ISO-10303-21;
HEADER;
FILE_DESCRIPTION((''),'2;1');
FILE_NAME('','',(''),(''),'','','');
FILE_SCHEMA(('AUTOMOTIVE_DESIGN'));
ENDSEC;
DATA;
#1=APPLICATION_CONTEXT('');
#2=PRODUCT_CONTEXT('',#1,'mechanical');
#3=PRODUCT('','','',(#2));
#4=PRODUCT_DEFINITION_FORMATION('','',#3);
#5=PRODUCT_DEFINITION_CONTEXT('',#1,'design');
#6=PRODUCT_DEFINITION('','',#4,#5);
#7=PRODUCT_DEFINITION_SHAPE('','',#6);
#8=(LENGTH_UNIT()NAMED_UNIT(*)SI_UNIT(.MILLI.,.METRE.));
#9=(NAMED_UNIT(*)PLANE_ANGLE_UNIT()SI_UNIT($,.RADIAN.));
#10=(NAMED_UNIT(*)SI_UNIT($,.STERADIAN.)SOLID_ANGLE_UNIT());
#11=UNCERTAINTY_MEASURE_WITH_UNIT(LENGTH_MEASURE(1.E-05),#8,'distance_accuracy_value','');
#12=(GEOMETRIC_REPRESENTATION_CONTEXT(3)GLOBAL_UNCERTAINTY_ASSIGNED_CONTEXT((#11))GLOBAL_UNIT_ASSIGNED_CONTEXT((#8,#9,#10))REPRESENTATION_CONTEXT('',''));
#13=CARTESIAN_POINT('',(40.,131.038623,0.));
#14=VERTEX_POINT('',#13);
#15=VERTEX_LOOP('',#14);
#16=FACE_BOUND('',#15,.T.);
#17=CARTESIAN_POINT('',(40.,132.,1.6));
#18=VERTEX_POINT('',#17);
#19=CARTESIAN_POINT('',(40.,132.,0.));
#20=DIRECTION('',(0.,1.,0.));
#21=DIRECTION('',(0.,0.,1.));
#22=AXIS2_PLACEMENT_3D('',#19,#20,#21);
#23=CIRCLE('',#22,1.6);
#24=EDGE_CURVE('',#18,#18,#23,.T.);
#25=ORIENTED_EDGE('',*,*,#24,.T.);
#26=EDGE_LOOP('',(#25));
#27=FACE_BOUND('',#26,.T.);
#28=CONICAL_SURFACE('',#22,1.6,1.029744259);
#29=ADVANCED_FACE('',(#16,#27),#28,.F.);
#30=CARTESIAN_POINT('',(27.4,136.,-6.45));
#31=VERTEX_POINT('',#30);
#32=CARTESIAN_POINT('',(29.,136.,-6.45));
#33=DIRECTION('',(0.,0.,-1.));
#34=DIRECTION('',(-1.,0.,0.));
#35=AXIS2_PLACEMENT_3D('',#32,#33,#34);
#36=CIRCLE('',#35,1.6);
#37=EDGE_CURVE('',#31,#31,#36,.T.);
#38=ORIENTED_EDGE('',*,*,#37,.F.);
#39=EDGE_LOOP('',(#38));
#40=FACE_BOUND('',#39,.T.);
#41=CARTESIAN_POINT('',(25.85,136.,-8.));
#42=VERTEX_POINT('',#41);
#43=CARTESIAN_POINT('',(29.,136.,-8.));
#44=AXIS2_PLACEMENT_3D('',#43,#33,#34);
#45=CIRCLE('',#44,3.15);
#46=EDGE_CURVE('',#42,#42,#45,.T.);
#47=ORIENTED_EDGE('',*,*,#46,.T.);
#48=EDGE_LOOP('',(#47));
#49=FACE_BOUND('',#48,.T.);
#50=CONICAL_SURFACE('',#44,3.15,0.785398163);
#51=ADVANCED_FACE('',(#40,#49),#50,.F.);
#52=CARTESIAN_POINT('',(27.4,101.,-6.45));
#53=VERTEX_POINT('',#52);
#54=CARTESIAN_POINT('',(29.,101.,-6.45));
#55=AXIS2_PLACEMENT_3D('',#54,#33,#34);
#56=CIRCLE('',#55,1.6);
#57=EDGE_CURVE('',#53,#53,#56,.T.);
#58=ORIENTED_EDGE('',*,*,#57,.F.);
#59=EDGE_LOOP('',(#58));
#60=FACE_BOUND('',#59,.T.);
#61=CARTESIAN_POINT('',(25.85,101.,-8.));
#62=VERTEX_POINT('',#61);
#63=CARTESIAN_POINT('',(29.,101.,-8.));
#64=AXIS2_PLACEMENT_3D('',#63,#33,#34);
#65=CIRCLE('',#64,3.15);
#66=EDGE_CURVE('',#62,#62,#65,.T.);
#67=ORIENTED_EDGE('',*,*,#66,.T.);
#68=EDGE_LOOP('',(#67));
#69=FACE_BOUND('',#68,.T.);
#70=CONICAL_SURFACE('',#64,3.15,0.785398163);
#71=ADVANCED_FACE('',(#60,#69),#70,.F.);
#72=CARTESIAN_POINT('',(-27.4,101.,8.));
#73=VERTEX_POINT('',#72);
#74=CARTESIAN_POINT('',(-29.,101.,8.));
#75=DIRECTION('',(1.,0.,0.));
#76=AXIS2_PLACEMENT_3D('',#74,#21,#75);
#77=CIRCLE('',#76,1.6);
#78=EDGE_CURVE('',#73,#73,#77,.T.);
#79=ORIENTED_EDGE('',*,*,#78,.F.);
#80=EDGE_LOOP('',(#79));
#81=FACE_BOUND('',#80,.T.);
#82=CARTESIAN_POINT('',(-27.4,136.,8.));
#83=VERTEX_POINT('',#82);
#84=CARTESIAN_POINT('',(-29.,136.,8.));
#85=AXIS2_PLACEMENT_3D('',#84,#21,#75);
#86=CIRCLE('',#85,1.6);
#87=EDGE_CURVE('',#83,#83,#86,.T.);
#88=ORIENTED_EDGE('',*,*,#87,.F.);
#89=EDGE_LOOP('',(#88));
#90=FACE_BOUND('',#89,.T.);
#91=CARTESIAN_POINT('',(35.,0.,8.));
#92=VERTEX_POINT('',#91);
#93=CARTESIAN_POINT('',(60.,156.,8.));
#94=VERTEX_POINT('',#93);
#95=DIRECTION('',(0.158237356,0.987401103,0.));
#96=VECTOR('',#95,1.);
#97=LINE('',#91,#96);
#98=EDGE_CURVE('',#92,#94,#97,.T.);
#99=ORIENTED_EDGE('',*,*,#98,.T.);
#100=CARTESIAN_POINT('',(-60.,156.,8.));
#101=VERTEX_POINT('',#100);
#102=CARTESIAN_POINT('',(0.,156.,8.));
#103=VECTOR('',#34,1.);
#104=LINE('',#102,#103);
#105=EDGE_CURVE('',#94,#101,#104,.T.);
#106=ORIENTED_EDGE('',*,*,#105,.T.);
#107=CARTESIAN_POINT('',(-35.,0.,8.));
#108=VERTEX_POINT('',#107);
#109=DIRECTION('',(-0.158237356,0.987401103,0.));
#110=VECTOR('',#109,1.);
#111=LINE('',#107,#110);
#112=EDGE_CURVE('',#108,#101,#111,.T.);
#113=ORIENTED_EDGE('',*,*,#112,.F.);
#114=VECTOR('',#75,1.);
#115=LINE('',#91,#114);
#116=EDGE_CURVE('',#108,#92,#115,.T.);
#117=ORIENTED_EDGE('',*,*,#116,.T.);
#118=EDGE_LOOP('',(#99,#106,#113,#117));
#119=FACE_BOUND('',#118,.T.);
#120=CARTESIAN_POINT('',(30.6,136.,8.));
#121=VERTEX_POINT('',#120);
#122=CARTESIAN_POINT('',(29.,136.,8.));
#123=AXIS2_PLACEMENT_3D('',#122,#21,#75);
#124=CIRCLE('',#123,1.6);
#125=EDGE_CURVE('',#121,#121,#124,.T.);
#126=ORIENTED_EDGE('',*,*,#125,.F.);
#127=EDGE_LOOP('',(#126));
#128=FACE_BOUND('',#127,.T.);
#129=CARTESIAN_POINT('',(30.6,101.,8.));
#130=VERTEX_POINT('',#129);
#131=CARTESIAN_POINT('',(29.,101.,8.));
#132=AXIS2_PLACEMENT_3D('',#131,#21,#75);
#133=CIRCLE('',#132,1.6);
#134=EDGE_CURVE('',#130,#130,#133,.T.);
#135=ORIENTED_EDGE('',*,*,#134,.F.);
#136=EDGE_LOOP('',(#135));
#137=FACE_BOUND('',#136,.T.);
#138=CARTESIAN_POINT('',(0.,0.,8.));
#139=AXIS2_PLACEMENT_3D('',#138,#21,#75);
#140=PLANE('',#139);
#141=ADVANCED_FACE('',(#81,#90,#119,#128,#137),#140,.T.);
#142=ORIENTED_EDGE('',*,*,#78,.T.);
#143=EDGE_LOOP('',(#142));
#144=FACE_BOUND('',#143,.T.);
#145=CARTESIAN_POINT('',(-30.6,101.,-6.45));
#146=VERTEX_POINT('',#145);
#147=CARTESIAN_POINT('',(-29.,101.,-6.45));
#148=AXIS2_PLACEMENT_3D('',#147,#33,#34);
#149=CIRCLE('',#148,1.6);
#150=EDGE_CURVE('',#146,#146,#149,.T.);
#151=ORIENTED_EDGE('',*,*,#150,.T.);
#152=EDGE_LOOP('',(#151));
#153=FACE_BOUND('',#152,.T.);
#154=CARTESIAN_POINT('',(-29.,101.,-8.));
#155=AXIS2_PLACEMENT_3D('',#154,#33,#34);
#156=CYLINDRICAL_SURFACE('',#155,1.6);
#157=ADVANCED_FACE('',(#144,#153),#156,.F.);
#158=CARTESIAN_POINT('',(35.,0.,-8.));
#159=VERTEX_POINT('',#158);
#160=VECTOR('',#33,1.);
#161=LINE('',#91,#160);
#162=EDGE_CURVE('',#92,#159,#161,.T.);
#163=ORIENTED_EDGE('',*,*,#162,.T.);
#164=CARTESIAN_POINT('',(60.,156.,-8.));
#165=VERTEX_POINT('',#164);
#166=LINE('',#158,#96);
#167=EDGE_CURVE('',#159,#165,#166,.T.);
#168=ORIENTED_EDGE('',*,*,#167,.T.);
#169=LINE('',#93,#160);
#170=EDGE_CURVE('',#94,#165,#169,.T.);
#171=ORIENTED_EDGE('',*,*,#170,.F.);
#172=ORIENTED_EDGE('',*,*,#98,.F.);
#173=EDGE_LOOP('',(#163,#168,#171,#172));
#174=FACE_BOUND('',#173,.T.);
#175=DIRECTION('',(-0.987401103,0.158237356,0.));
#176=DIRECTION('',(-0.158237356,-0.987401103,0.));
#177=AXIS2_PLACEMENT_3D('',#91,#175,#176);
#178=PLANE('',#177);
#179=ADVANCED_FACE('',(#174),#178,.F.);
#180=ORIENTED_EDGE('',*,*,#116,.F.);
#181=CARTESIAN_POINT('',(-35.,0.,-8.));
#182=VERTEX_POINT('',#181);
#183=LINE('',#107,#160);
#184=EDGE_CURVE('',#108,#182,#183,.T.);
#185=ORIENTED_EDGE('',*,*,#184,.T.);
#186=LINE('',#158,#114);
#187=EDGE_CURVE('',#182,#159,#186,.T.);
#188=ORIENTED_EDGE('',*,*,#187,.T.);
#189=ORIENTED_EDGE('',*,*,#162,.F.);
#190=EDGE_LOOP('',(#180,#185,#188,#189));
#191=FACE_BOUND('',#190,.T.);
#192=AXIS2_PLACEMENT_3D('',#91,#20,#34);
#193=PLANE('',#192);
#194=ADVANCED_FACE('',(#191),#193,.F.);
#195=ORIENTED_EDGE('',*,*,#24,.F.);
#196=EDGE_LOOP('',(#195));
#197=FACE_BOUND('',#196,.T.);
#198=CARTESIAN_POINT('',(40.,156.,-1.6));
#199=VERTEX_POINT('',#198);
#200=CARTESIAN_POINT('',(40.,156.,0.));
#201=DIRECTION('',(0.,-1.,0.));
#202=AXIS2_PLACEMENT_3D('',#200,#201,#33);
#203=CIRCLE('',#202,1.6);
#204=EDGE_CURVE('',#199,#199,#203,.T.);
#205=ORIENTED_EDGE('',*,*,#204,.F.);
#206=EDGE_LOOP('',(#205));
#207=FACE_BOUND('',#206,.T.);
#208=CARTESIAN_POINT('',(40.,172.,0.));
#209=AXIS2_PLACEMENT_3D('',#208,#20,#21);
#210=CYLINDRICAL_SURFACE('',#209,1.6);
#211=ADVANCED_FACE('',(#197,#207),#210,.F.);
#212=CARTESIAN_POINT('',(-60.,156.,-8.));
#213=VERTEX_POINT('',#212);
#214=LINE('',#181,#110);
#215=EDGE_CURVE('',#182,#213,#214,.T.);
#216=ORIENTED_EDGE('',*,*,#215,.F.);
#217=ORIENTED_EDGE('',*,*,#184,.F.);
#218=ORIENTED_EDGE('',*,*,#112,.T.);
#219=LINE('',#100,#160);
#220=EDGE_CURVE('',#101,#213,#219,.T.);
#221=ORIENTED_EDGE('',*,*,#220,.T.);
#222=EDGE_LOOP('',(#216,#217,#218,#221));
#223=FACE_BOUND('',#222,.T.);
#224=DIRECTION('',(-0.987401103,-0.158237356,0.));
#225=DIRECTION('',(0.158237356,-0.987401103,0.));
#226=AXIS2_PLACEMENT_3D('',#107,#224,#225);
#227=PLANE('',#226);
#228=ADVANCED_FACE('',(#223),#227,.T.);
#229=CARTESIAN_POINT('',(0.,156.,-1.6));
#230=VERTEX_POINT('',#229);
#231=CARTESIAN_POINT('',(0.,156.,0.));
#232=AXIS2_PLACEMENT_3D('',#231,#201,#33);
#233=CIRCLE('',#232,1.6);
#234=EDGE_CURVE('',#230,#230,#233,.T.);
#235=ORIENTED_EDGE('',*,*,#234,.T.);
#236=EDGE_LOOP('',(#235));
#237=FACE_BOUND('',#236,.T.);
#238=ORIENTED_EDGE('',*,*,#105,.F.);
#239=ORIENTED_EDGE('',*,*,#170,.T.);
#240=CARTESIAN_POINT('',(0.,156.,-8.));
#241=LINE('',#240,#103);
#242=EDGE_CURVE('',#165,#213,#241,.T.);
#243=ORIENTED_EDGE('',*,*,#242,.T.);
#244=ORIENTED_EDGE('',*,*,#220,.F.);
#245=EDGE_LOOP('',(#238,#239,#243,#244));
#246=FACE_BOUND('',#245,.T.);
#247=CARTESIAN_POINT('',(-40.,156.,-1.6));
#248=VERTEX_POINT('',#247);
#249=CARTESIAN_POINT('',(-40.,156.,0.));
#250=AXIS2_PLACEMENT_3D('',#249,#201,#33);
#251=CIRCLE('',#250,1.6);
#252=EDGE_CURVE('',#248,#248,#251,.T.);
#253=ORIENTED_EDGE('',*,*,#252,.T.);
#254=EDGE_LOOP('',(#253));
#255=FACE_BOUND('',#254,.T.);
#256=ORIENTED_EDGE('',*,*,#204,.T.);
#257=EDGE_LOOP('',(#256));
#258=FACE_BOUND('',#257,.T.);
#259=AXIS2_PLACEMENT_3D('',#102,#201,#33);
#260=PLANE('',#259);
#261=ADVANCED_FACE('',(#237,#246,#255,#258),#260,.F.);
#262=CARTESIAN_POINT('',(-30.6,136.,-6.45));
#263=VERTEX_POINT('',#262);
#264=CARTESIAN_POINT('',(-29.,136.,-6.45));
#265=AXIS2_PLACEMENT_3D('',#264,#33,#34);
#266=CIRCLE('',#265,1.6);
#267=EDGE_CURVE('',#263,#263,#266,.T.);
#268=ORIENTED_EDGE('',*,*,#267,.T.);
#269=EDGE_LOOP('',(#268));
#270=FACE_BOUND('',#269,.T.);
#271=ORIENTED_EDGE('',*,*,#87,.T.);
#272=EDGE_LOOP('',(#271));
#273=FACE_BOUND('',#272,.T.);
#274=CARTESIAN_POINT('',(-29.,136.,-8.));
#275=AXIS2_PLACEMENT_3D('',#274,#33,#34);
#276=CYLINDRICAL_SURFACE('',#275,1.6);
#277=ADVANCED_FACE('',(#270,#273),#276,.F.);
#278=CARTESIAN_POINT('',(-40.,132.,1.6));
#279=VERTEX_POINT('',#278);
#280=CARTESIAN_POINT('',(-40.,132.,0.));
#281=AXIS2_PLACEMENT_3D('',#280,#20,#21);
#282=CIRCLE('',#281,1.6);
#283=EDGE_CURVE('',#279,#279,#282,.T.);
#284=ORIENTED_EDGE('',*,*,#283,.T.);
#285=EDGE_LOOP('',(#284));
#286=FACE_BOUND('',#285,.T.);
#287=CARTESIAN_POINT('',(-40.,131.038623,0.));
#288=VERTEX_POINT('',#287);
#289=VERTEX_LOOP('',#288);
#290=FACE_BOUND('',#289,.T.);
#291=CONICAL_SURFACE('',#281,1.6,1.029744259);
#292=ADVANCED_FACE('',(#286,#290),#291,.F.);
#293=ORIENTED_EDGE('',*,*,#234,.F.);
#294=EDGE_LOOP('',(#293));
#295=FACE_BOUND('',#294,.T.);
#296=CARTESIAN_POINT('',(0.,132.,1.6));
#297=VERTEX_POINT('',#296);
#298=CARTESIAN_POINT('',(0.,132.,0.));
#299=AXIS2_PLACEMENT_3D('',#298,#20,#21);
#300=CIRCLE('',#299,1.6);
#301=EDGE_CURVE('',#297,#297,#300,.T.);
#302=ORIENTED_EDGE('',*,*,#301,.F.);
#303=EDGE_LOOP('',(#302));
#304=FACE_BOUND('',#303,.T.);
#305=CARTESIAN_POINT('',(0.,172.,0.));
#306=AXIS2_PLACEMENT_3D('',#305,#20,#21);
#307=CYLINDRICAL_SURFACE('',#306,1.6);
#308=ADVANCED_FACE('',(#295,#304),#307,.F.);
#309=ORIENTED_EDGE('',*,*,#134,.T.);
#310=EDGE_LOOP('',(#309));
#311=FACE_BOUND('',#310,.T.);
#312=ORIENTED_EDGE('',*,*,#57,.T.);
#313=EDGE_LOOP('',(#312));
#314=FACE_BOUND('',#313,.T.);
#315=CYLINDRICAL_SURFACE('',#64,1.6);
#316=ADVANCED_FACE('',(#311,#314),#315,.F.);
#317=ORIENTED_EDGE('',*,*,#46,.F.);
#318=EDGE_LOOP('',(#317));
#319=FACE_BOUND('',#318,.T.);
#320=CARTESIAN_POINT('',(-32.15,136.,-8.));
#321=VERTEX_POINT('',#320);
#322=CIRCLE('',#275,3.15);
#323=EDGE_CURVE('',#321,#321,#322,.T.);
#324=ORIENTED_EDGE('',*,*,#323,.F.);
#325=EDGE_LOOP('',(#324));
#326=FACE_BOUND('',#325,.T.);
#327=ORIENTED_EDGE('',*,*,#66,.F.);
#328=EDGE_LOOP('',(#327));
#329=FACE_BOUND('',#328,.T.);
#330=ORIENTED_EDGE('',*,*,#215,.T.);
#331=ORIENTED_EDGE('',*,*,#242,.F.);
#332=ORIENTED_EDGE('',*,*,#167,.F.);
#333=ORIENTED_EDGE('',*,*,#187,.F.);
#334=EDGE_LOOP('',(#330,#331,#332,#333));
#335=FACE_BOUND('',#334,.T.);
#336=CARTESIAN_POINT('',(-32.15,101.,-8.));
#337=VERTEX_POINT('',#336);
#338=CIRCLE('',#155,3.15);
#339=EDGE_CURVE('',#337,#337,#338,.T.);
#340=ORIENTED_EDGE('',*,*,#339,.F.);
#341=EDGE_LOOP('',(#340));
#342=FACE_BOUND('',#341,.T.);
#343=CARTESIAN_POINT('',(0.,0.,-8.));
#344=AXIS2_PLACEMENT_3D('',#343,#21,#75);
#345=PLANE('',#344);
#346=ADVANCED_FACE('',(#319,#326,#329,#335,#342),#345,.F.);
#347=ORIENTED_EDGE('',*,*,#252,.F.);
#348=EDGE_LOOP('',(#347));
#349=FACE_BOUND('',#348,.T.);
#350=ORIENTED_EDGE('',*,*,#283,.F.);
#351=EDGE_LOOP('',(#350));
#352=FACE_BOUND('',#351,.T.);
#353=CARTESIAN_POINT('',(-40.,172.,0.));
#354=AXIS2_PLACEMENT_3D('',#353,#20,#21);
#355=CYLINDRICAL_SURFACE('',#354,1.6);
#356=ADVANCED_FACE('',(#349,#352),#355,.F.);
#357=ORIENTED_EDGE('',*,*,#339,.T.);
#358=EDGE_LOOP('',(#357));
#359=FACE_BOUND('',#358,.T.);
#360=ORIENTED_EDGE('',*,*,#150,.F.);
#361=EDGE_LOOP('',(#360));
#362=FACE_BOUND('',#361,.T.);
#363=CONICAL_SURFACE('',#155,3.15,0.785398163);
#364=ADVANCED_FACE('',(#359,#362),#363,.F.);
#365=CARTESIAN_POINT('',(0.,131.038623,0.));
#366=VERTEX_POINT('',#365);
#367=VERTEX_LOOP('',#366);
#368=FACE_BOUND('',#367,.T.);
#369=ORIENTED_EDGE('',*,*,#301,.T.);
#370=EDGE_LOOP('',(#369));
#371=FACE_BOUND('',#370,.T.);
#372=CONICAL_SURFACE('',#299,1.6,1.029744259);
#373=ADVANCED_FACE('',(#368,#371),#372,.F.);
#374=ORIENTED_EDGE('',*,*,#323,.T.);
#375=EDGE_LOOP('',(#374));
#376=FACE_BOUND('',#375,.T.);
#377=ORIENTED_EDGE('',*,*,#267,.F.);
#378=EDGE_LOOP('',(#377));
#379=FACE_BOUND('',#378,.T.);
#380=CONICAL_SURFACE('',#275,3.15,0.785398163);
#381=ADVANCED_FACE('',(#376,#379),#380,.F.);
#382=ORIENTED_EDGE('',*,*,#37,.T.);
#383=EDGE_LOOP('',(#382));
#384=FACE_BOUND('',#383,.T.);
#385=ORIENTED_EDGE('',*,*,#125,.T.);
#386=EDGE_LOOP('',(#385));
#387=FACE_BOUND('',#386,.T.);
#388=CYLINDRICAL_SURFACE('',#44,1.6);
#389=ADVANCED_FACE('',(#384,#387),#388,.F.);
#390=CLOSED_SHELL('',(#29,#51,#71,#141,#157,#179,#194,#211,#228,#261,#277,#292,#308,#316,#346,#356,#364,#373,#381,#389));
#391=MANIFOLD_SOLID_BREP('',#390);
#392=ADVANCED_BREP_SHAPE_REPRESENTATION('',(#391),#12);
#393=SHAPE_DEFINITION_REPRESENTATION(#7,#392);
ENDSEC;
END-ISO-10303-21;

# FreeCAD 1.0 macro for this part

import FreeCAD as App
import Part
import Sketcher

V = App.Vector
Q = App.Units.Quantity


def add_polygon(sketch, points):
    """Adds a closed chain of lines whose ends are joined by coincident constraints."""
    first, n = sketch.GeometryCount, len(points)
    for a, b in zip(points, points[1:] + points[:1]):
        sketch.addGeometry(Part.LineSegment(App.Vector(*a, 0), App.Vector(*b, 0)), False)
    for i in range(n):
        sketch.addConstraint(Sketcher.Constraint("Coincident", first + i, 2, first + (i + 1) % n, 1))

doc = App.newDocument("Part")
body = doc.addObject("PartDesign::Body", "Body")

# Sketch on XY plane
sketch1 = body.newObject("Sketcher::SketchObject", "Sketch")
sketch1.AttachmentSupport = (doc.getObject("XY_Plane"), [""])
sketch1.MapMode = "FlatFace"
add_polygon(sketch1, [(0, 0), (35, 0), (60, 156), (0, 156)])  # lines 0-3
sketch1.addConstraint([
    Sketcher.Constraint("Horizontal", 0),
    Sketcher.Constraint("Horizontal", 2),
    Sketcher.Constraint("Vertical", 3),
    Sketcher.Constraint("Coincident", 3, 2, -1, 1),
    Sketcher.Constraint("DistanceX", 0, 1, 0, 2, 35.0),
    Sketcher.Constraint("DistanceX", 2, 2, 2, 1, 60.0),
    Sketcher.Constraint("DistanceY", 3, 2, 3, 1, 156.0),
])
pad1 = body.newObject("PartDesign::Pad", "Pad")
pad1.Profile = sketch1
pad1.Length = 16
pad1.Midplane = True
doc.recompute()

mirrored = body.newObject("PartDesign::Mirrored", "Mirrored")
mirrored.Originals = [pad1]
mirrored.MirrorPlane = (doc.getObject("YZ_Plane"), [""])
body.Tip = mirrored

# Sketch on YZ plane
sketch2 = body.newObject("Sketcher::SketchObject", "Sketch001")
sketch2.AttachmentSupport = (doc.getObject("YZ_Plane"), [""])
sketch2.MapMode = "FlatFace"
sketch2.AttachmentOffset = App.Placement(V(0, 0, 29), App.Rotation())
add_polygon(sketch2, [(101, 32.961377), (101, -8), (104.15, -8), (102.6, -6.45), (102.6, 32)])  # lines 0-4
sketch2.addGeometry(Part.LineSegment(V(101, -8, 0), V(101, 32.961377, 0)), True)  # axis
sketch2.addConstraint([
    Sketcher.Constraint("Vertical", 0),
    Sketcher.Constraint("Horizontal", 1),
    Sketcher.Constraint("Vertical", 3),
    Sketcher.Constraint("Vertical", 5),
    Sketcher.Constraint("Coincident", 5, 1, 0, 2),
    Sketcher.Constraint("Equal", 0, 5),
    Sketcher.Constraint("Angle", 2, Q("135 deg")),
    Sketcher.Constraint("Angle", 4, Q("149 deg")),
    Sketcher.Constraint("DistanceX", -1, 1, 0, 2, 101.0),
    Sketcher.Constraint("DistanceY", 0, 2, -1, 1, 8.0),
    Sketcher.Constraint("DistanceY", -1, 1, 3, 2, 32.0),
    Sketcher.Constraint("DistanceX", 1, 1, 1, 2, 3.15),
    Sketcher.Constraint("DistanceY", 3, 1, 3, 2, 38.45),
])
groove = body.newObject("PartDesign::Groove", "Groove")
groove.Profile = sketch2
groove.ReferenceAxis = (sketch2, ["Axis0"])
groove.Angle = 360
doc.recompute()

linearpattern = body.newObject("PartDesign::LinearPattern", "LinearPattern")
linearpattern.Originals = [groove]
linearpattern.Direction = (doc.getObject("Y_Axis"), [""])
linearpattern.Mode = "offset"
linearpattern.Offset = 35
linearpattern.Occurrences = 2
body.Tip = linearpattern
doc.recompute()

linearpattern2 = body.newObject("PartDesign::LinearPattern", "LinearPattern001")
linearpattern2.Originals = [groove]
linearpattern2.Direction = (doc.getObject("X_Axis"), [""])
linearpattern2.Mode = "offset"
linearpattern2.Offset = 58
linearpattern2.Occurrences = 2
linearpattern2.Reversed = True
body.Tip = linearpattern2

# Sketch on YZ plane
sketch3 = body.newObject("Sketcher::SketchObject", "Sketch002")
sketch3.AttachmentSupport = (doc.getObject("YZ_Plane"), [""])
sketch3.MapMode = "FlatFace"
sketch3.AttachmentOffset = App.Placement(V(0, 0, -29), App.Rotation())
add_polygon(sketch3, [(136, 32.961377), (136, -8), (139.15, -8), (137.6, -6.45), (137.6, 32)])  # lines 0-4
sketch3.addGeometry(Part.LineSegment(V(136, -8, 0), V(136, 32.961377, 0)), True)  # axis
sketch3.addConstraint([
    Sketcher.Constraint("Vertical", 0),
    Sketcher.Constraint("Horizontal", 1),
    Sketcher.Constraint("Vertical", 3),
    Sketcher.Constraint("Vertical", 5),
    Sketcher.Constraint("Coincident", 5, 1, 0, 2),
    Sketcher.Constraint("Equal", 0, 5),
    Sketcher.Constraint("Angle", 2, Q("135 deg")),
    Sketcher.Constraint("Angle", 4, Q("149 deg")),
    Sketcher.Constraint("DistanceX", -1, 1, 0, 2, 136.0),
    Sketcher.Constraint("DistanceY", 0, 2, -1, 1, 8.0),
    Sketcher.Constraint("DistanceY", -1, 1, 3, 2, 32.0),
    Sketcher.Constraint("DistanceX", 1, 1, 1, 2, 3.15),
    Sketcher.Constraint("DistanceY", 3, 1, 3, 2, 38.45),
])
groove2 = body.newObject("PartDesign::Groove", "Groove001")
groove2.Profile = sketch3
groove2.ReferenceAxis = (sketch3, ["Axis0"])
groove2.Angle = 360

# Sketch on XZ plane
sketch4 = body.newObject("Sketcher::SketchObject", "Sketch003")
sketch4.AttachmentSupport = (doc.getObject("XZ_Plane"), [""])
sketch4.MapMode = "FlatFace"
sketch4.AttachmentOffset = App.Placement(V(0, 0, -172), App.Rotation())
sketch4.addGeometry([
    Part.Circle(V(40, 0, 0), V(0, 0, 1), 1.6),  # 0
    Part.Circle(V(29, 33, 0), V(0, 0, 1), 1.6),  # 1
    Part.Circle(V(-29, 33, 0), V(0, 0, 1), 1.6),  # 2
    Part.Circle(V(-29, 13, 0), V(0, 0, 1), 1.6),  # 3
    Part.Circle(V(0, 0, 0), V(0, 0, 1), 1.6),  # 4
    Part.Circle(V(-40, 0, 0), V(0, 0, 1), 1.6),  # 5
    Part.Circle(V(29, 13, 0), V(0, 0, 1), 1.6),  # 6
], False)
sketch4.addConstraint([
    Sketcher.Constraint("Coincident", 4, 3, -1, 1),
    Sketcher.Constraint("Equal", 0, 1),
    Sketcher.Constraint("Equal", 1, 2),
    Sketcher.Constraint("Equal", 2, 3),
    Sketcher.Constraint("Equal", 3, 4),
    Sketcher.Constraint("Equal", 4, 5),
    Sketcher.Constraint("Equal", 5, 6),
    Sketcher.Constraint("Symmetric", 0, 3, 5, 3, -1, 1),
    Sketcher.Constraint("Symmetric", 1, 3, 2, 3, -2),
    Sketcher.Constraint("Symmetric", 3, 3, 6, 3, -2),
    Sketcher.Constraint("PointOnObject", 0, 3, -1),
    Sketcher.Constraint("Vertical", 2, 3, 3, 3),
    Sketcher.Constraint("Diameter", 0, 3.2),
    Sketcher.Constraint("DistanceX", -1, 1, 0, 3, 40.0),
    Sketcher.Constraint("DistanceX", -1, 1, 1, 3, 29.0),
    Sketcher.Constraint("DistanceY", -1, 1, 1, 3, 33.0),
    Sketcher.Constraint("DistanceY", -1, 1, 3, 3, 13.0),
])
doc.recompute()
hole = body.newObject("PartDesign::Hole", "Hole")
hole.Profile = sketch4
hole.ThreadType = "None"
hole.Diameter = 3.2
hole.DepthType = "Dimension"
hole.Depth = 40
hole.DrillPoint = "Angled"
hole.DrillPointAngle = 118
hole.HoleCutType = "Countersink"
hole.HoleCutDiameter = 6.3
hole.HoleCutCountersinkAngle = 90
hole.Reversed = True

doc.recompute()
